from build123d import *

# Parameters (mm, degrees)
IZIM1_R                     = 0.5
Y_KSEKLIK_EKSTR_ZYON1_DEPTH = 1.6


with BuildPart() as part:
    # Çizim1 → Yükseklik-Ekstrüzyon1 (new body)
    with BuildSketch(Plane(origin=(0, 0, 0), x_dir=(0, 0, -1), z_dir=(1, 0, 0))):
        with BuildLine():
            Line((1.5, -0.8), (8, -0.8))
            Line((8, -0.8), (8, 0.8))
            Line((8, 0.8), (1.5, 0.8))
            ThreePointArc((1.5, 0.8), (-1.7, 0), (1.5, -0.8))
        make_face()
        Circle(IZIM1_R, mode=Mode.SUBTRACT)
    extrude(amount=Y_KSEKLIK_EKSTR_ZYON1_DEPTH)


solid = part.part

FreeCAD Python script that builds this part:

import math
import FreeCAD as App
import Part
import Sketcher

doc = App.newDocument("Part")
body = doc.addObject("PartDesign::Body", "Body")

# Sketch on YZ plane
sketch1 = body.newObject("Sketcher::SketchObject", "Sketch")
sketch1.AttachmentSupport = (doc.getObject("YZ_Plane"), [""])
sketch1.MapMode = "FlatFace"
sketch1.addGeometry(Part.LineSegment(App.Vector(-0.8, -1.5, 0), App.Vector(-0.8, -8, 0)), False)
sketch1.addGeometry(Part.LineSegment(App.Vector(-0.8, -8, 0), App.Vector(0.8, -8, 0)), False)
sketch1.addGeometry(Part.LineSegment(App.Vector(0.8, -8, 0), App.Vector(0.8, -1.5, 0)), False)
sketch1.addGeometry(Part.ArcOfCircle(Part.Circle(App.Vector(0, 0, 0), App.Vector(0, 0, 1), 1.7), math.radians(-61.927513), math.radians(241.927513)), False)
sketch1.addGeometry(Part.Circle(App.Vector(0, 0, 0), App.Vector(0, 0, 1), 0.5), False)
sketch1.addConstraint(Sketcher.Constraint("Coincident", 0, 2, 1, 1))
sketch1.addConstraint(Sketcher.Constraint("Coincident", 1, 2, 2, 1))
sketch1.addConstraint(Sketcher.Constraint("Coincident", 2, 2, 3, 1))
sketch1.addConstraint(Sketcher.Constraint("Coincident", 3, 2, 0, 1))
sketch1.addConstraint(Sketcher.Constraint("Vertical", 0))
sketch1.addConstraint(Sketcher.Constraint("Horizontal", 1))
sketch1.addConstraint(Sketcher.Constraint("Vertical", 2))
sketch1.addConstraint(Sketcher.Constraint("Coincident", 3, 3, -1, 1))
sketch1.addConstraint(Sketcher.Constraint("Coincident", 4, 3, -1, 1))
sketch1.addConstraint(Sketcher.Constraint("Horizontal", 2, 2, 3, 2))
sketch1.addConstraint(Sketcher.Constraint("Diameter", 4, 1.0))
sketch1.addConstraint(Sketcher.Constraint("Radius", 3, 1.7))
sketch1.addConstraint(Sketcher.Constraint("DistanceX", 1, 1, 1, 2, 1.6))
sketch1.addConstraint(Sketcher.Constraint("DistanceY", 0, 2, 0, 1, 6.5))
pad1 = body.newObject("PartDesign::Pad", "Pad")
pad1.Profile = sketch1
pad1.Length = 1.6

doc.recompute()
